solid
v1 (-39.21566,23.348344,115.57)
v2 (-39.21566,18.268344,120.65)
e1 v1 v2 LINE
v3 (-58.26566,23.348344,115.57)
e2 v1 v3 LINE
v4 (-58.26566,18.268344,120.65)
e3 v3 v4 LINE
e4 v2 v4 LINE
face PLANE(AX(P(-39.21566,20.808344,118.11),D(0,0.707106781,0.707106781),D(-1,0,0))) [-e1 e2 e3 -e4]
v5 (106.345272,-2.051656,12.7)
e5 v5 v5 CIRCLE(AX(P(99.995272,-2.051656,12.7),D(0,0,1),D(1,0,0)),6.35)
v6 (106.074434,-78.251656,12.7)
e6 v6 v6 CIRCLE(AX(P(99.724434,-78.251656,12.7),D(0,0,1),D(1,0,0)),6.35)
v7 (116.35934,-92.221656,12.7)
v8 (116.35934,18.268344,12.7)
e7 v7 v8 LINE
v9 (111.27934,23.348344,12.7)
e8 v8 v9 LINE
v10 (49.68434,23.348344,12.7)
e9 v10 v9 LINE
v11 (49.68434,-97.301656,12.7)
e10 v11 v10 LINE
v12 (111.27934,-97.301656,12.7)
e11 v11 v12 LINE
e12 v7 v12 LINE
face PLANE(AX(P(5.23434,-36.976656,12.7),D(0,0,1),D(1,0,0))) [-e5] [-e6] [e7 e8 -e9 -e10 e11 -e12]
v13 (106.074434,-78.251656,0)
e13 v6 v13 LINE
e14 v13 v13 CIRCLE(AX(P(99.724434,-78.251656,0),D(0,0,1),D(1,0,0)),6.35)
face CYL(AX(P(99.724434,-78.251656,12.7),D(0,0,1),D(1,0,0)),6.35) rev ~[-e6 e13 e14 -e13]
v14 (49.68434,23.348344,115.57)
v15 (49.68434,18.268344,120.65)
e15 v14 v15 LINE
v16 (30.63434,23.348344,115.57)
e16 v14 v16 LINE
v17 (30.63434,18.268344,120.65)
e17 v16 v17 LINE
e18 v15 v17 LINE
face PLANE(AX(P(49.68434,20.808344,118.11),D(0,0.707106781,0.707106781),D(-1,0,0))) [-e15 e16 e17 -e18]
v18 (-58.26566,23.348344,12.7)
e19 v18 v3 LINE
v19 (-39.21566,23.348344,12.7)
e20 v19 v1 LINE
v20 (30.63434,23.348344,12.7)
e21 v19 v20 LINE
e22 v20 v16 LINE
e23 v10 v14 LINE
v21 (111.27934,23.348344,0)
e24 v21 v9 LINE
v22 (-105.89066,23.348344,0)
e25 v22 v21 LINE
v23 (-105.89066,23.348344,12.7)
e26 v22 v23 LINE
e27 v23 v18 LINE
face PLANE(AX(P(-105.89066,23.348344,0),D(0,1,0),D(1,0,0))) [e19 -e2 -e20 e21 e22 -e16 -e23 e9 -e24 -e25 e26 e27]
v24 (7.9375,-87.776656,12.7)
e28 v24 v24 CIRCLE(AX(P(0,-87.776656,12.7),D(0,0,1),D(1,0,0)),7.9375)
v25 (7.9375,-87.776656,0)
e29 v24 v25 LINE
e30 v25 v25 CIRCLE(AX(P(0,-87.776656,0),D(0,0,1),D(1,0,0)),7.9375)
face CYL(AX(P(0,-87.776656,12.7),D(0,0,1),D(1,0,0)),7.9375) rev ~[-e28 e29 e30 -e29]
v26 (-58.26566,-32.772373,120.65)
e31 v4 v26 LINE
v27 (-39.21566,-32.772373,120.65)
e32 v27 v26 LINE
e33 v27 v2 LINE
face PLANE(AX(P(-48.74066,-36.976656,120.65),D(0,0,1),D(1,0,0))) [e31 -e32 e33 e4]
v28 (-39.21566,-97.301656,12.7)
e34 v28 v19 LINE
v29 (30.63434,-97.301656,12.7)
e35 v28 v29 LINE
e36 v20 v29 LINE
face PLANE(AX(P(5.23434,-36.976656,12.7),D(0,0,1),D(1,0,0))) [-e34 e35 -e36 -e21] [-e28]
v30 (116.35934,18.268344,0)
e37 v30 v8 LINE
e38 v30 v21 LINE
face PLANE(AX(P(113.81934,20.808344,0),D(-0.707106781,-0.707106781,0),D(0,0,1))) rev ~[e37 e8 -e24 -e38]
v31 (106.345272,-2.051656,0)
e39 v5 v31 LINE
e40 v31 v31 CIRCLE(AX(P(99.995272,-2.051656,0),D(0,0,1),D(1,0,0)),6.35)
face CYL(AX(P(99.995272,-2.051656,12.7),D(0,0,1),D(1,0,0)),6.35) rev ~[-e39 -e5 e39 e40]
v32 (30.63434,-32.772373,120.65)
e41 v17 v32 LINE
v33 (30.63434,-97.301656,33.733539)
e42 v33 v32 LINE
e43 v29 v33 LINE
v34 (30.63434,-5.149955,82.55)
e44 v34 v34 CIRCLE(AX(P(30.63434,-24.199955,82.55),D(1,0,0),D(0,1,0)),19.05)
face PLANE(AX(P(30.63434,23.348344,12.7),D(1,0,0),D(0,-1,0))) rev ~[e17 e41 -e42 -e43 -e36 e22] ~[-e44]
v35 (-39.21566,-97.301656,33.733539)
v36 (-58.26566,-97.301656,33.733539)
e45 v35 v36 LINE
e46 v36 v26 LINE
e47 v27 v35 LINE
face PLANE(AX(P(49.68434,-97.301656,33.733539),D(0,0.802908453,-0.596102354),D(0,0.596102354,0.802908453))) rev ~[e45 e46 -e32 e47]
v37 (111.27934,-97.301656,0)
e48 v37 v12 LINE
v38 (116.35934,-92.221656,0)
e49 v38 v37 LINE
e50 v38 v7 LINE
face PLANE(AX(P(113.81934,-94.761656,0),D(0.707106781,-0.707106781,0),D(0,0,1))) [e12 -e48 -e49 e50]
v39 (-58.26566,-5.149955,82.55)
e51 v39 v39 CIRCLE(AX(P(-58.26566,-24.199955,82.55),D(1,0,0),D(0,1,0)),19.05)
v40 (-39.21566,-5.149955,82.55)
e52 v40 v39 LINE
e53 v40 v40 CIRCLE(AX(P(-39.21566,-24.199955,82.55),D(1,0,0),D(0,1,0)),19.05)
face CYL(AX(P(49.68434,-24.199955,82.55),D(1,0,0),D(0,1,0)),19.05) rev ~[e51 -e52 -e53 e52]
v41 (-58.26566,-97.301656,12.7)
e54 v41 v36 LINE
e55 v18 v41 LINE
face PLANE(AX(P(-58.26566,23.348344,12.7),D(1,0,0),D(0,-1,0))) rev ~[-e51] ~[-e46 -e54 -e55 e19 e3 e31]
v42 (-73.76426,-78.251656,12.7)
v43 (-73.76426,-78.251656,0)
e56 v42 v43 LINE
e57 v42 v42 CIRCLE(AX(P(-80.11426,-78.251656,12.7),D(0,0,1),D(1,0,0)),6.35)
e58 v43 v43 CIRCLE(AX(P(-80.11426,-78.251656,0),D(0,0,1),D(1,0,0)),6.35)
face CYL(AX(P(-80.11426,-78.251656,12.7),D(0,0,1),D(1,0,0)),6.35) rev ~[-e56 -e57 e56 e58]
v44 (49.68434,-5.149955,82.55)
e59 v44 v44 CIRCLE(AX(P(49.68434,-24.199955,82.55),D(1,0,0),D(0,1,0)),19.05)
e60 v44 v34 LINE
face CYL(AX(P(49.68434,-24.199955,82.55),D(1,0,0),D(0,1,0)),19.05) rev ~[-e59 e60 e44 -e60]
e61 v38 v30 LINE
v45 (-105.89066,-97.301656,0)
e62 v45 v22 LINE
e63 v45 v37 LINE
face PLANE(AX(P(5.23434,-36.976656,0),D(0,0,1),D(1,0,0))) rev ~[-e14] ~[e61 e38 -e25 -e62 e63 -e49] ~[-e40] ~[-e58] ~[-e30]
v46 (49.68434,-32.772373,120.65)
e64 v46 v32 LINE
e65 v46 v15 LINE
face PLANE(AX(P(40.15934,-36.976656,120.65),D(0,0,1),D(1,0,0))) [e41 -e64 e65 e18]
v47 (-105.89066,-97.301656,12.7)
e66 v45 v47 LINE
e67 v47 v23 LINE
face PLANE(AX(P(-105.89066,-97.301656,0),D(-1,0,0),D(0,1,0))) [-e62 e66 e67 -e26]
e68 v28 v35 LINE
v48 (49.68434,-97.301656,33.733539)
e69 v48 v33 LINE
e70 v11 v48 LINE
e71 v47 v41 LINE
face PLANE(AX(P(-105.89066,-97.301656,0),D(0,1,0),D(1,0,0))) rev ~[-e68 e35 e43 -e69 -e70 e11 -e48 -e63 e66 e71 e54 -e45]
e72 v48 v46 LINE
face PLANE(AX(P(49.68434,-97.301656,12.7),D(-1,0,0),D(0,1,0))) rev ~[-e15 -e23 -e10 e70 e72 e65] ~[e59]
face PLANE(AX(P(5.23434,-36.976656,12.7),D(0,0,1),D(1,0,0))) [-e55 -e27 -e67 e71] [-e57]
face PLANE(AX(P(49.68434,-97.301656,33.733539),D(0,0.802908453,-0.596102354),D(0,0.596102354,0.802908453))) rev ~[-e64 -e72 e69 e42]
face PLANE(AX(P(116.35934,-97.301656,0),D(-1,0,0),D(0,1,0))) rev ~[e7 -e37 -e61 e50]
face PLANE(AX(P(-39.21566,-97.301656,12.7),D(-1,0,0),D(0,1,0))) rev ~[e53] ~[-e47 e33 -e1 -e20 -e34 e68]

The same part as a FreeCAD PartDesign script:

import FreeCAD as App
import Part
import Sketcher
from FreeCAD import Vector
Q = App.Units.Quantity


def edges_at(feature, points):
    """Names of the edges that pass closest to the given points."""
    edges = feature.Shape.Edges
    near = lambda p: min(range(len(edges)), key=lambda i: edges[i].distToShape(Part.Vertex(*p))[0])
    return sorted({f"Edge{near(p) + 1}" for p in points})


def add_polygon(sketch, points):
    """Adds a closed chain of lines whose ends are joined by coincident constraints."""
    first, n = sketch.GeometryCount, len(points)
    for a, b in zip(points, points[1:] + points[:1]):
        sketch.addGeometry(Part.LineSegment(App.Vector(*a, 0), App.Vector(*b, 0)), False)
    for i in range(n):
        sketch.addConstraint(Sketcher.Constraint("Coincident", first + i, 2, first + (i + 1) % n, 1))

doc = App.newDocument("Part")
body = doc.addObject("PartDesign::Body", "Body")

sketch1 = body.newObject("Sketcher::SketchObject", "Sketch")
sketch1.AttachmentSupport = (doc.getObject("XY_Plane"), [""])
sketch1.MapMode = "FlatFace"
add_polygon(sketch1, [(-106, 23), (-106, -97), (116, -97), (116, 23)])
sketch1.addConstraint(Sketcher.Constraint("Vertical", 0))
sketch1.addConstraint(Sketcher.Constraint("Horizontal", 1))
sketch1.addConstraint(Sketcher.Constraint("Vertical", 2))
sketch1.addConstraint(Sketcher.Constraint("Horizontal", 3))
sketch1.addConstraint(Sketcher.Constraint("DistanceX", 1, 1, 1, 2, Q("8.75 in")))
sketch1.addConstraint(Sketcher.Constraint("DistanceY", 0, 2, 0, 1, Q("4.75 in")))
sketch1.addConstraint(Sketcher.Constraint("DistanceX", 0, 2, -1, 1, Q("105.89066 mm")))
sketch1.addConstraint(Sketcher.Constraint("DistanceY", 0, 2, -1, 1, Q("97.301656 mm")))
pad1 = body.newObject("PartDesign::Pad", "Pad")
pad1.Profile = sketch1
pad1.Length = Q("0.5 in")

sketch2 = body.newObject("Sketcher::SketchObject", "Sketch001")
sketch2.AttachmentSupport = (doc.getObject("XY_Plane"), [""])
sketch2.MapMode = "FlatFace"
sketch2.AttachmentOffset = App.Placement(Vector(0, 0, 0.5 * 25.4), App.Rotation())
add_polygon(sketch2, [(-58, 23), (-58, -97), (-39, -97), (-39, 23)])
sketch2.addConstraint(Sketcher.Constraint("Vertical", 0))
sketch2.addConstraint(Sketcher.Constraint("Horizontal", 1))
sketch2.addConstraint(Sketcher.Constraint("Vertical", 2))
sketch2.addConstraint(Sketcher.Constraint("Horizontal", 3))
sketch2.addConstraint(Sketcher.Constraint("DistanceX", 1, 1, 1, 2, Q("0.75 in")))
sketch2.addConstraint(Sketcher.Constraint("DistanceY", 0, 2, 0, 1, Q("4.75 in")))
sketch2.addConstraint(Sketcher.Constraint("DistanceX", 0, 2, -1, 1, Q("58.26566 mm")))
sketch2.addConstraint(Sketcher.Constraint("DistanceY", 0, 2, -1, 1, Q("97.301656 mm")))
pad2 = body.newObject("PartDesign::Pad", "Pad001")
pad2.Profile = sketch2
pad2.Length = Q("4.25 in")

sketch3 = body.newObject("Sketcher::SketchObject", "Sketch002")
sketch3.AttachmentSupport = (doc.getObject("XY_Plane"), [""])
sketch3.MapMode = "FlatFace"
sketch3.AttachmentOffset = App.Placement(Vector(0, 0, 0.5 * 25.4), App.Rotation())
add_polygon(sketch3, [(31, 23), (31, -97), (50, -97), (50, 23)])
sketch3.addConstraint(Sketcher.Constraint("Vertical", 0))
sketch3.addConstraint(Sketcher.Constraint("Horizontal", 1))
sketch3.addConstraint(Sketcher.Constraint("Vertical", 2))
sketch3.addConstraint(Sketcher.Constraint("Horizontal", 3))
sketch3.addConstraint(Sketcher.Constraint("DistanceX", 1, 1, 1, 2, Q("0.75 in")))
sketch3.addConstraint(Sketcher.Constraint("DistanceY", 0, 2, 0, 1, Q("4.75 in")))
sketch3.addConstraint(Sketcher.Constraint("DistanceX", -1, 1, 0, 2, Q("30.63434 mm")))
sketch3.addConstraint(Sketcher.Constraint("DistanceY", 0, 2, -1, 1, Q("97.301656 mm")))
pad3 = body.newObject("PartDesign::Pad", "Pad002")
pad3.Profile = sketch3
pad3.Length = Q("4.25 in")
doc.recompute()

chamfer = body.newObject("PartDesign::Chamfer", "Chamfer")
chamfer.Base = (pad3, edges_at(pad3, [(40.159, 23.348, 120.65)]))
chamfer.ChamferType = "Two distances"
chamfer.Size = Q("0.2 in")
chamfer.Size2 = Q("0.2 in")

sketch4 = body.newObject("Sketcher::SketchObject", "Sketch003")
sketch4.AttachmentSupport = (doc.getObject("YZ_Plane"), [""])
sketch4.MapMode = "FlatFace"
sketch4.AttachmentOffset = App.Placement(Vector(0, 0, 49.68434), App.Rotation())
sketch4.addGeometry(Part.Circle(Vector(-24, 83, 0), Vector(0, 0, 1), 19), False)
sketch4.addConstraint(Sketcher.Constraint("Diameter", 0, Q("1.5 in")))
sketch4.addConstraint(Sketcher.Constraint("DistanceY", -1, 1, 0, 3, Q("3.25 in")))
sketch4.addConstraint(Sketcher.Constraint("DistanceX", 0, 3, -1, 1, Q("24.199955 mm")))
pocket1 = body.newObject("PartDesign::Pocket", "Pocket")
pocket1.Profile = sketch4
pocket1.Length = Q("7.57 in")
doc.recompute()

chamfer2 = body.newObject("PartDesign::Chamfer", "Chamfer001")
chamfer2.Base = (pocket1, edges_at(pocket1, [(-48.741, 23.348, 120.65)]))
chamfer2.Size = Q("0.2 in")
doc.recompute()

chamfer3 = body.newObject("PartDesign::Chamfer", "Chamfer002")
chamfer3.Base = (chamfer2, edges_at(chamfer2, [(116.359, -97.302, 6.35)]))
chamfer3.Size = Q("0.2 in")
doc.recompute()

chamfer4 = body.newObject("PartDesign::Chamfer", "Chamfer003")
chamfer4.Base = (chamfer3, edges_at(chamfer3, [(116.359, 23.348, 6.35)]))
chamfer4.Size = Q("0.2 in")

sketch5 = body.newObject("Sketcher::SketchObject", "Sketch004")
sketch5.AttachmentSupport = (doc.getObject("XY_Plane"), [""])
sketch5.MapMode = "FlatFace"
sketch5.AttachmentOffset = App.Placement(Vector(0, 0, 0.5 * 25.4), App.Rotation())
sketch5.addGeometry(Part.Circle(Vector(100, -78, 0), Vector(0, 0, 1), 6), False)
sketch5.addGeometry(Part.Circle(Vector(100, -2, 0), Vector(0, 0, 1), 6), False)
sketch5.addGeometry(Part.Circle(Vector(-80, -78, 0), Vector(0, 0, 1), 6), False)
sketch5.addGeometry(Part.Circle(Vector(0, -88, 0), Vector(0, 0, 1), 8), False)
sketch5.addConstraint(Sketcher.Constraint("Equal", 0, 1))
sketch5.addConstraint(Sketcher.Constraint("Equal", 1, 2))
sketch5.addConstraint(Sketcher.Constraint("PointOnObject", 3, 3, -2))
sketch5.addConstraint(Sketcher.Constraint("Horizontal", 0, 3, 2, 3))
sketch5.addConstraint(Sketcher.Constraint("Diameter", 0, Q("0.5 in")))
sketch5.addConstraint(Sketcher.Constraint("Diameter", 3, Q("0.625 in")))
sketch5.addConstraint(Sketcher.Constraint("DistanceY", 0, 3, 1, 3, Q("3 in")))
sketch5.addConstraint(Sketcher.Constraint("DistanceY", 3, 3, 2, 3, Q("0.375 in")))
sketch5.addConstraint(Sketcher.Constraint("DistanceX", -1, 1, 1, 3, Q("99.995272 mm")))
sketch5.addConstraint(Sketcher.Constraint("DistanceX", 2, 3, -1, 1, Q("80.11426 mm")))
sketch5.addConstraint(Sketcher.Constraint("DistanceX", -1, 1, 0, 3, Q("99.724434 mm")))
sketch5.addConstraint(Sketcher.Constraint("DistanceY", 0, 3, -1, 1, Q("78.251656 mm")))
pocket2 = body.newObject("PartDesign::Pocket", "Pocket001")
pocket2.Profile = sketch5
pocket2.Length = Q("1 in")

sketch6 = body.newObject("Sketcher::SketchObject", "Sketch005")
sketch6.AttachmentSupport = (doc.getObject("YZ_Plane"), [""])
sketch6.MapMode = "FlatFace"
sketch6.AttachmentOffset = App.Placement(Vector(0, 0, 49.68434), App.Rotation())
add_polygon(sketch6, [(-97, 121), (-97, 34), (-33, 121)])
sketch6.addConstraint(Sketcher.Constraint("Vertical", 0))
sketch6.addConstraint(Sketcher.Constraint("Horizontal", 2))
sketch6.addConstraint(Sketcher.Constraint("DistanceY", -1, 1, 1, 2, Q("4.75 in")))
sketch6.addConstraint(Sketcher.Constraint("DistanceY", 0, 2, 0, 1, Q("86.916461 mm")))
sketch6.addConstraint(Sketcher.Constraint("Distance", 1, Q("108.252019 mm")))
sketch6.addConstraint(Sketcher.Constraint("DistanceX", 0, 2, -1, 1, Q("97.301656 mm")))
pocket3 = body.newObject("PartDesign::Pocket", "Pocket002")
pocket3.Profile = sketch6
pocket3.Length = Q("8.51 in")

doc.recompute()
